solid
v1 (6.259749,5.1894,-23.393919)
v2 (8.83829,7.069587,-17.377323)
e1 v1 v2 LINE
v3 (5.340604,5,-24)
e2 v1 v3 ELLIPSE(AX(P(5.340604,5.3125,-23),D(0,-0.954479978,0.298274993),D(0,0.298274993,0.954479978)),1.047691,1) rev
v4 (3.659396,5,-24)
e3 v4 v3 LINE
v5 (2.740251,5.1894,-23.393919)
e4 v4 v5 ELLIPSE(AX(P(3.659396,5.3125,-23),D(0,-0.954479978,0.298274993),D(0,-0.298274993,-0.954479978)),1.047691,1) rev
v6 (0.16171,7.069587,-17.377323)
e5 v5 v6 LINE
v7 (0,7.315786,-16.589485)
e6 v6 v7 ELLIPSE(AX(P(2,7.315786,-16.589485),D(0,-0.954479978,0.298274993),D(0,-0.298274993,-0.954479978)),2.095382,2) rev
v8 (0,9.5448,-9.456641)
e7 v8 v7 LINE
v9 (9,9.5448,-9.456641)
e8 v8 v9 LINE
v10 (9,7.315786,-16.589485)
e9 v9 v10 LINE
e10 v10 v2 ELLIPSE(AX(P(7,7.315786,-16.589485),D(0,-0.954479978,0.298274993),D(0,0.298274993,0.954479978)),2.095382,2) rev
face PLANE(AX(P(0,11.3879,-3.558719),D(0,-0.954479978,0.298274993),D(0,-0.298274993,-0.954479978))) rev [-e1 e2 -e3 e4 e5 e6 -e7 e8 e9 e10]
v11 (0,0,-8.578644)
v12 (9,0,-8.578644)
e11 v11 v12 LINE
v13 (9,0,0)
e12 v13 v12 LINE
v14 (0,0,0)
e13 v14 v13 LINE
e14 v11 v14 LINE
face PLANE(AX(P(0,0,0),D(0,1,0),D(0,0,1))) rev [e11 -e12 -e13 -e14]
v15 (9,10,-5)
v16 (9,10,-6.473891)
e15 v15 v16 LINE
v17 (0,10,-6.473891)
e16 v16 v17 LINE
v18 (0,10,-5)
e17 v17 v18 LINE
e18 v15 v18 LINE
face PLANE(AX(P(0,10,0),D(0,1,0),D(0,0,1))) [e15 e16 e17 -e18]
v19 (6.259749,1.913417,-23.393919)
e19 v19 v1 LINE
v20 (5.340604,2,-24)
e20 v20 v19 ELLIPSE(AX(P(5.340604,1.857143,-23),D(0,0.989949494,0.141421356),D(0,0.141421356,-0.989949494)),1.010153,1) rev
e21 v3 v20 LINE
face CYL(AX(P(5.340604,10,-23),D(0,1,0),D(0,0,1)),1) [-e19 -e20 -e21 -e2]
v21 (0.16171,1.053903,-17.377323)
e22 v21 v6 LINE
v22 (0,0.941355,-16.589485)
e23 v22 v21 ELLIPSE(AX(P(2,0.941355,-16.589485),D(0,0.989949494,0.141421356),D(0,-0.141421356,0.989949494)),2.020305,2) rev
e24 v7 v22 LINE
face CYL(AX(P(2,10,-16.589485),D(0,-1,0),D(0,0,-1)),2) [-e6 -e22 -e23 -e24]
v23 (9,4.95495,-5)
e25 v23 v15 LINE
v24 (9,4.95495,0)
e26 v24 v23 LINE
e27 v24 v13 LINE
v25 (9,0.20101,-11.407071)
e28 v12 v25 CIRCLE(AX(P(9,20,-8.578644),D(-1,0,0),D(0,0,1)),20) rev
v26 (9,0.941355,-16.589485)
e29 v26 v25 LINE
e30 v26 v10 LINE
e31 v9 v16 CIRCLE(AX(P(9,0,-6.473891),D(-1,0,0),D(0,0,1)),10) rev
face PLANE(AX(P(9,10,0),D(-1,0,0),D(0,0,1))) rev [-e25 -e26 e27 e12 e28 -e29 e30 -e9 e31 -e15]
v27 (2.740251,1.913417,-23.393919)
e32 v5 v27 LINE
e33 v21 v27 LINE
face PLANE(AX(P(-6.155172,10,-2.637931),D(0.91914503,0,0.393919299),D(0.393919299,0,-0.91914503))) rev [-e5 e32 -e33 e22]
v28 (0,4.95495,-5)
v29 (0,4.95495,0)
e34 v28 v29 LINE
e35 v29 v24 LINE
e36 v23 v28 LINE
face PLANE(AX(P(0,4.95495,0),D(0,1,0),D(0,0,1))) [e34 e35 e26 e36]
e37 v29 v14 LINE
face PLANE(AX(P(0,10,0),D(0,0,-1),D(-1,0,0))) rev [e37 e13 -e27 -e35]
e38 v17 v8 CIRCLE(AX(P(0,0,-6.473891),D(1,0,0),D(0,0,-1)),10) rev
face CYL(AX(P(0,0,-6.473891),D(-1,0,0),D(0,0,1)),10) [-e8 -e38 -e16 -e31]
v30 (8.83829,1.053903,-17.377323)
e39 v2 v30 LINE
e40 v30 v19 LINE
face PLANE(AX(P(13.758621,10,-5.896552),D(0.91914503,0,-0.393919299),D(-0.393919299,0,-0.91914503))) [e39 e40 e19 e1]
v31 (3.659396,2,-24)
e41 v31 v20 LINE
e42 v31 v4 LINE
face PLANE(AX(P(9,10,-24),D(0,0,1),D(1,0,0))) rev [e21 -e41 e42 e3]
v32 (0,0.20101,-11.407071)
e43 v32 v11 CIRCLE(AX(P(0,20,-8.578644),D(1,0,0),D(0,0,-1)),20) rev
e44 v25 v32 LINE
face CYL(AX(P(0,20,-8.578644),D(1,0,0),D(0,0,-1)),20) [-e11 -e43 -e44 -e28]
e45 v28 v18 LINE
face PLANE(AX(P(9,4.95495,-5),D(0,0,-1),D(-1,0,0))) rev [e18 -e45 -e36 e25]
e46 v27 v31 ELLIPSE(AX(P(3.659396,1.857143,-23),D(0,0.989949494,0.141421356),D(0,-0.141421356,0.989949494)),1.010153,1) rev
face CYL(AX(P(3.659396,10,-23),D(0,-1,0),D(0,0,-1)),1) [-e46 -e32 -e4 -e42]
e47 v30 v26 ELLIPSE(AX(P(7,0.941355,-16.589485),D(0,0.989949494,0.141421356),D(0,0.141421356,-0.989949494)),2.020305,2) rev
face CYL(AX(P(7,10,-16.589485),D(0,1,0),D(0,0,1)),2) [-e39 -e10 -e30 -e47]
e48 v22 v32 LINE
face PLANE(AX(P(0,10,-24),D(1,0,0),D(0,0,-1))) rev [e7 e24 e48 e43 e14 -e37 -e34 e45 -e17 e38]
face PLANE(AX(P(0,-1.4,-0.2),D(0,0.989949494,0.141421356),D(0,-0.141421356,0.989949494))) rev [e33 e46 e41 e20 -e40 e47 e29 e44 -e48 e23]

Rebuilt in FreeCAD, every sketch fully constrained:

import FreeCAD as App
import Part
import Sketcher
from FreeCAD import Vector
Q = App.Units.Quantity


def edges_at(feature, points):
    """Names of the edges that pass closest to the given points."""
    edges = feature.Shape.Edges
    near = lambda p: min(range(len(edges)), key=lambda i: edges[i].distToShape(Part.Vertex(*p))[0])
    return sorted({f"Edge{near(p) + 1}" for p in points})

doc = App.newDocument("Part")
params = doc.addObject("Spreadsheet::Sheet", "Params")
for row, (alias, value) in enumerate([
    ("sketch1_width", "9 mm"),
    ("sketch1_height", "24 mm"),
    ("pad1_length", "10 mm"),
    ("sketch2_width", "9 mm"),
    ("sketch2_height", "5 mm"),
    ("pocket1_length", "5.04505 mm"),
    ("sketch3_width", "5 mm"),
    ("sketch3_width2", "2 mm"),
    ("sketch3_height", "16 mm"),
    ("sketch3_height2", "14 mm"),
    ("sketch4_width", "3 mm"),
    ("sketch4_height", "7 mm"),
    ("fillet_radius", "20 mm"),
    ("fillet2_radius", "1 mm"),
    ("fillet3_radius", "2 mm"),
    ("fillet4_radius", "10 mm"),
], start=1):
    params.set(f"A{row}", alias)
    params.set(f"B{row}", "=" + value)
    params.setAlias(f"B{row}", alias)

body = doc.addObject("PartDesign::Body", "Body")

sketch1 = body.newObject("Sketcher::SketchObject", "Sketch")
sketch1.AttachmentSupport = (doc.getObject("XZ_Plane"), [""])
sketch1.MapMode = "FlatFace"
sketch1.addGeometry([
    Part.LineSegment(Vector(0, -24, 0), Vector(0, 0, 0)),
    Part.LineSegment(Vector(0, 0, 0), Vector(9, 0, 0)),
    Part.LineSegment(Vector(9, 0, 0), Vector(9, -24, 0)),
    Part.LineSegment(Vector(9, -24, 0), Vector(0, -24, 0)),
], False)
sketch1.addConstraint([
    Sketcher.Constraint("Coincident", 0, 2, 1, 1),
    Sketcher.Constraint("Coincident", 1, 2, 2, 1),
    Sketcher.Constraint("Coincident", 2, 2, 3, 1),
    Sketcher.Constraint("Coincident", 3, 2, 0, 1),
    Sketcher.Constraint("Vertical", 0),
    Sketcher.Constraint("Horizontal", 1),
    Sketcher.Constraint("Vertical", 2),
    Sketcher.Constraint("Horizontal", 3),
    Sketcher.Constraint("Coincident", 0, 2, -1, 1),
    Sketcher.Constraint("DistanceX", 1, 1, 1, 2, Q("9 mm")),
    Sketcher.Constraint("DistanceY", 0, 1, 0, 2, Q("24 mm")),
])
sketch1.setExpression("Constraints[9]", "Params.sketch1_width")
sketch1.setExpression("Constraints[10]", "Params.sketch1_height")
pad1 = body.newObject("PartDesign::Pad", "Pad")
pad1.Profile = sketch1
pad1.setExpression("Length", "Params.pad1_length")
pad1.Reversed = True

sketch2 = body.newObject("Sketcher::SketchObject", "Sketch001")
sketch2.AttachmentSupport = (doc.getObject("XZ_Plane"), [""])
sketch2.MapMode = "FlatFace"
sketch2.AttachmentOffset = App.Placement(Vector(0, 0, -10), App.Rotation())
sketch2.addGeometry([
    Part.LineSegment(Vector(0, -5, 0), Vector(0, 0, 0)),
    Part.LineSegment(Vector(0, 0, 0), Vector(9, 0, 0)),
    Part.LineSegment(Vector(9, 0, 0), Vector(9, -5, 0)),
    Part.LineSegment(Vector(9, -5, 0), Vector(0, -5, 0)),
], False)
sketch2.addConstraint([
    Sketcher.Constraint("Coincident", 0, 2, 1, 1),
    Sketcher.Constraint("Coincident", 1, 2, 2, 1),
    Sketcher.Constraint("Coincident", 2, 2, 3, 1),
    Sketcher.Constraint("Coincident", 3, 2, 0, 1),
    Sketcher.Constraint("Vertical", 0),
    Sketcher.Constraint("Horizontal", 1),
    Sketcher.Constraint("Vertical", 2),
    Sketcher.Constraint("Horizontal", 3),
    Sketcher.Constraint("Coincident", 0, 2, -1, 1),
    Sketcher.Constraint("DistanceX", 1, 1, 1, 2, Q("9 mm")),
    Sketcher.Constraint("DistanceY", 0, 1, 0, 2, Q("5 mm")),
])
sketch2.setExpression("Constraints[9]", "Params.sketch2_width")
sketch2.setExpression("Constraints[10]", "Params.sketch2_height")
pocket1 = body.newObject("PartDesign::Pocket", "Pocket")
pocket1.Profile = sketch2
pocket1.setExpression("Length", "Params.pocket1_length")
pocket1.Reversed = True

sketch3 = body.newObject("Sketcher::SketchObject", "Sketch002")
sketch3.AttachmentSupport = (doc.getObject("YZ_Plane"), [""])
sketch3.MapMode = "FlatFace"
sketch3.AttachmentOffset = App.Placement(Vector(0, 0, 9), App.Rotation())
sketch3.addGeometry([
    Part.LineSegment(Vector(10, -8, 0), Vector(5, -24, 0)),
    Part.LineSegment(Vector(5, -24, 0), Vector(10, -24, 0)),
    Part.LineSegment(Vector(10, -24, 0), Vector(10, -8, 0)),
    Part.LineSegment(Vector(0, -10, 0), Vector(0, -24, 0)),
    Part.LineSegment(Vector(0, -24, 0), Vector(2, -24, 0)),
    Part.LineSegment(Vector(2, -24, 0), Vector(0, -10, 0)),
], False)
sketch3.addConstraint([
    Sketcher.Constraint("Coincident", 0, 2, 1, 1),
    Sketcher.Constraint("Coincident", 1, 2, 2, 1),
    Sketcher.Constraint("Coincident", 2, 2, 0, 1),
    Sketcher.Constraint("Coincident", 3, 2, 4, 1),
    Sketcher.Constraint("Coincident", 4, 2, 5, 1),
    Sketcher.Constraint("Coincident", 5, 2, 3, 1),
    Sketcher.Constraint("Horizontal", 1),
    Sketcher.Constraint("Vertical", 2),
    Sketcher.Constraint("Vertical", 3),
    Sketcher.Constraint("Horizontal", 4),
    Sketcher.Constraint("PointOnObject", 3, 2, -2),
    Sketcher.Constraint("Horizontal", 1, 2, 3, 2),
    Sketcher.Constraint("DistanceX", 1, 1, 1, 2, Q("5 mm")),
    Sketcher.Constraint("DistanceX", 4, 1, 4, 2, Q("2 mm")),
    Sketcher.Constraint("DistanceY", 2, 1, 2, 2, Q("16 mm")),
    Sketcher.Constraint("DistanceY", 3, 2, 3, 1, Q("14 mm")),
    Sketcher.Constraint("DistanceX", -1, 1, 0, 2, Q("5 mm")),
    Sketcher.Constraint("DistanceY", 0, 2, -1, 1, Q("24 mm")),
])
sketch3.setExpression("Constraints[12]", "Params.sketch3_width")
sketch3.setExpression("Constraints[13]", "Params.sketch3_width2")
sketch3.setExpression("Constraints[14]", "Params.sketch3_height")
sketch3.setExpression("Constraints[15]", "Params.sketch3_height2")
pocket2 = body.newObject("PartDesign::Pocket", "Pocket001")
pocket2.Profile = sketch3
pocket2.Type = "ThroughAll"

sketch4 = body.newObject("Sketcher::SketchObject", "Sketch003")
sketch4.AttachmentSupport = (doc.getObject("XZ_Plane"), [""])
sketch4.MapMode = "FlatFace"
sketch4.addGeometry([
    Part.LineSegment(Vector(9, -24, 0), Vector(9, -17, 0)),
    Part.LineSegment(Vector(9, -17, 0), Vector(6, -24, 0)),
    Part.LineSegment(Vector(6, -24, 0), Vector(9, -24, 0)),
    Part.LineSegment(Vector(3, -24, 0), Vector(0, -17, 0)),
    Part.LineSegment(Vector(0, -17, 0), Vector(0, -24, 0)),
    Part.LineSegment(Vector(0, -24, 0), Vector(3, -24, 0)),
], False)
sketch4.addConstraint([
    Sketcher.Constraint("Coincident", 0, 2, 1, 1),
    Sketcher.Constraint("Coincident", 1, 2, 2, 1),
    Sketcher.Constraint("Coincident", 2, 2, 0, 1),
    Sketcher.Constraint("Coincident", 3, 2, 4, 1),
    Sketcher.Constraint("Coincident", 4, 2, 5, 1),
    Sketcher.Constraint("Coincident", 5, 2, 3, 1),
    Sketcher.Constraint("Vertical", 0),
    Sketcher.Constraint("Horizontal", 2),
    Sketcher.Constraint("Vertical", 4),
    Sketcher.Constraint("Horizontal", 5),
    Sketcher.Constraint("PointOnObject", 3, 2, -2),
    Sketcher.Constraint("Horizontal", 0, 2, 3, 2),
    Sketcher.Constraint("Horizontal", 2, 2, 4, 2),
    Sketcher.Constraint("Equal", 2, 5),
    Sketcher.Constraint("DistanceX", 2, 1, 2, 2, Q("3 mm")),
    Sketcher.Constraint("DistanceY", 0, 1, 0, 2, Q("7 mm")),
    Sketcher.Constraint("DistanceX", -1, 1, 0, 2, Q("9 mm")),
    Sketcher.Constraint("DistanceY", 0, 2, -1, 1, Q("17 mm")),
])
sketch4.setExpression("Constraints[14]", "Params.sketch4_width")
sketch4.setExpression("Constraints[15]", "Params.sketch4_height")
pocket3 = body.newObject("PartDesign::Pocket", "Pocket002")
pocket3.Profile = sketch4
pocket3.Type = "ThroughAll"
doc.recompute()

fillet = body.newObject("PartDesign::Fillet", "Fillet")
fillet.Base = (pocket3, edges_at(pocket3, [(4.5, 0, -10)]))
fillet.setExpression("Radius", "Params.fillet_radius")
doc.recompute()

fillet2 = body.newObject("PartDesign::Fillet", "Fillet001")
fillet2.Base = (fillet, edges_at(fillet, [(6, 3.5, -24), (3, 3.5, -24)]))
fillet2.setExpression("Radius", "Params.fillet2_radius")
doc.recompute()

fillet3 = body.newObject("PartDesign::Fillet", "Fillet002")
fillet3.Base = (fillet2, edges_at(fillet2, [(9, 4.094, -17), (0, 4.094, -17)]))
fillet3.setExpression("Radius", "Params.fillet3_radius")
doc.recompute()

fillet4 = body.newObject("PartDesign::Fillet", "Fillet003")
fillet4.Base = (fillet3, edges_at(fillet3, [(4.5, 10, -8)]))
fillet4.setExpression("Radius", "Params.fillet4_radius")

doc.recompute()
